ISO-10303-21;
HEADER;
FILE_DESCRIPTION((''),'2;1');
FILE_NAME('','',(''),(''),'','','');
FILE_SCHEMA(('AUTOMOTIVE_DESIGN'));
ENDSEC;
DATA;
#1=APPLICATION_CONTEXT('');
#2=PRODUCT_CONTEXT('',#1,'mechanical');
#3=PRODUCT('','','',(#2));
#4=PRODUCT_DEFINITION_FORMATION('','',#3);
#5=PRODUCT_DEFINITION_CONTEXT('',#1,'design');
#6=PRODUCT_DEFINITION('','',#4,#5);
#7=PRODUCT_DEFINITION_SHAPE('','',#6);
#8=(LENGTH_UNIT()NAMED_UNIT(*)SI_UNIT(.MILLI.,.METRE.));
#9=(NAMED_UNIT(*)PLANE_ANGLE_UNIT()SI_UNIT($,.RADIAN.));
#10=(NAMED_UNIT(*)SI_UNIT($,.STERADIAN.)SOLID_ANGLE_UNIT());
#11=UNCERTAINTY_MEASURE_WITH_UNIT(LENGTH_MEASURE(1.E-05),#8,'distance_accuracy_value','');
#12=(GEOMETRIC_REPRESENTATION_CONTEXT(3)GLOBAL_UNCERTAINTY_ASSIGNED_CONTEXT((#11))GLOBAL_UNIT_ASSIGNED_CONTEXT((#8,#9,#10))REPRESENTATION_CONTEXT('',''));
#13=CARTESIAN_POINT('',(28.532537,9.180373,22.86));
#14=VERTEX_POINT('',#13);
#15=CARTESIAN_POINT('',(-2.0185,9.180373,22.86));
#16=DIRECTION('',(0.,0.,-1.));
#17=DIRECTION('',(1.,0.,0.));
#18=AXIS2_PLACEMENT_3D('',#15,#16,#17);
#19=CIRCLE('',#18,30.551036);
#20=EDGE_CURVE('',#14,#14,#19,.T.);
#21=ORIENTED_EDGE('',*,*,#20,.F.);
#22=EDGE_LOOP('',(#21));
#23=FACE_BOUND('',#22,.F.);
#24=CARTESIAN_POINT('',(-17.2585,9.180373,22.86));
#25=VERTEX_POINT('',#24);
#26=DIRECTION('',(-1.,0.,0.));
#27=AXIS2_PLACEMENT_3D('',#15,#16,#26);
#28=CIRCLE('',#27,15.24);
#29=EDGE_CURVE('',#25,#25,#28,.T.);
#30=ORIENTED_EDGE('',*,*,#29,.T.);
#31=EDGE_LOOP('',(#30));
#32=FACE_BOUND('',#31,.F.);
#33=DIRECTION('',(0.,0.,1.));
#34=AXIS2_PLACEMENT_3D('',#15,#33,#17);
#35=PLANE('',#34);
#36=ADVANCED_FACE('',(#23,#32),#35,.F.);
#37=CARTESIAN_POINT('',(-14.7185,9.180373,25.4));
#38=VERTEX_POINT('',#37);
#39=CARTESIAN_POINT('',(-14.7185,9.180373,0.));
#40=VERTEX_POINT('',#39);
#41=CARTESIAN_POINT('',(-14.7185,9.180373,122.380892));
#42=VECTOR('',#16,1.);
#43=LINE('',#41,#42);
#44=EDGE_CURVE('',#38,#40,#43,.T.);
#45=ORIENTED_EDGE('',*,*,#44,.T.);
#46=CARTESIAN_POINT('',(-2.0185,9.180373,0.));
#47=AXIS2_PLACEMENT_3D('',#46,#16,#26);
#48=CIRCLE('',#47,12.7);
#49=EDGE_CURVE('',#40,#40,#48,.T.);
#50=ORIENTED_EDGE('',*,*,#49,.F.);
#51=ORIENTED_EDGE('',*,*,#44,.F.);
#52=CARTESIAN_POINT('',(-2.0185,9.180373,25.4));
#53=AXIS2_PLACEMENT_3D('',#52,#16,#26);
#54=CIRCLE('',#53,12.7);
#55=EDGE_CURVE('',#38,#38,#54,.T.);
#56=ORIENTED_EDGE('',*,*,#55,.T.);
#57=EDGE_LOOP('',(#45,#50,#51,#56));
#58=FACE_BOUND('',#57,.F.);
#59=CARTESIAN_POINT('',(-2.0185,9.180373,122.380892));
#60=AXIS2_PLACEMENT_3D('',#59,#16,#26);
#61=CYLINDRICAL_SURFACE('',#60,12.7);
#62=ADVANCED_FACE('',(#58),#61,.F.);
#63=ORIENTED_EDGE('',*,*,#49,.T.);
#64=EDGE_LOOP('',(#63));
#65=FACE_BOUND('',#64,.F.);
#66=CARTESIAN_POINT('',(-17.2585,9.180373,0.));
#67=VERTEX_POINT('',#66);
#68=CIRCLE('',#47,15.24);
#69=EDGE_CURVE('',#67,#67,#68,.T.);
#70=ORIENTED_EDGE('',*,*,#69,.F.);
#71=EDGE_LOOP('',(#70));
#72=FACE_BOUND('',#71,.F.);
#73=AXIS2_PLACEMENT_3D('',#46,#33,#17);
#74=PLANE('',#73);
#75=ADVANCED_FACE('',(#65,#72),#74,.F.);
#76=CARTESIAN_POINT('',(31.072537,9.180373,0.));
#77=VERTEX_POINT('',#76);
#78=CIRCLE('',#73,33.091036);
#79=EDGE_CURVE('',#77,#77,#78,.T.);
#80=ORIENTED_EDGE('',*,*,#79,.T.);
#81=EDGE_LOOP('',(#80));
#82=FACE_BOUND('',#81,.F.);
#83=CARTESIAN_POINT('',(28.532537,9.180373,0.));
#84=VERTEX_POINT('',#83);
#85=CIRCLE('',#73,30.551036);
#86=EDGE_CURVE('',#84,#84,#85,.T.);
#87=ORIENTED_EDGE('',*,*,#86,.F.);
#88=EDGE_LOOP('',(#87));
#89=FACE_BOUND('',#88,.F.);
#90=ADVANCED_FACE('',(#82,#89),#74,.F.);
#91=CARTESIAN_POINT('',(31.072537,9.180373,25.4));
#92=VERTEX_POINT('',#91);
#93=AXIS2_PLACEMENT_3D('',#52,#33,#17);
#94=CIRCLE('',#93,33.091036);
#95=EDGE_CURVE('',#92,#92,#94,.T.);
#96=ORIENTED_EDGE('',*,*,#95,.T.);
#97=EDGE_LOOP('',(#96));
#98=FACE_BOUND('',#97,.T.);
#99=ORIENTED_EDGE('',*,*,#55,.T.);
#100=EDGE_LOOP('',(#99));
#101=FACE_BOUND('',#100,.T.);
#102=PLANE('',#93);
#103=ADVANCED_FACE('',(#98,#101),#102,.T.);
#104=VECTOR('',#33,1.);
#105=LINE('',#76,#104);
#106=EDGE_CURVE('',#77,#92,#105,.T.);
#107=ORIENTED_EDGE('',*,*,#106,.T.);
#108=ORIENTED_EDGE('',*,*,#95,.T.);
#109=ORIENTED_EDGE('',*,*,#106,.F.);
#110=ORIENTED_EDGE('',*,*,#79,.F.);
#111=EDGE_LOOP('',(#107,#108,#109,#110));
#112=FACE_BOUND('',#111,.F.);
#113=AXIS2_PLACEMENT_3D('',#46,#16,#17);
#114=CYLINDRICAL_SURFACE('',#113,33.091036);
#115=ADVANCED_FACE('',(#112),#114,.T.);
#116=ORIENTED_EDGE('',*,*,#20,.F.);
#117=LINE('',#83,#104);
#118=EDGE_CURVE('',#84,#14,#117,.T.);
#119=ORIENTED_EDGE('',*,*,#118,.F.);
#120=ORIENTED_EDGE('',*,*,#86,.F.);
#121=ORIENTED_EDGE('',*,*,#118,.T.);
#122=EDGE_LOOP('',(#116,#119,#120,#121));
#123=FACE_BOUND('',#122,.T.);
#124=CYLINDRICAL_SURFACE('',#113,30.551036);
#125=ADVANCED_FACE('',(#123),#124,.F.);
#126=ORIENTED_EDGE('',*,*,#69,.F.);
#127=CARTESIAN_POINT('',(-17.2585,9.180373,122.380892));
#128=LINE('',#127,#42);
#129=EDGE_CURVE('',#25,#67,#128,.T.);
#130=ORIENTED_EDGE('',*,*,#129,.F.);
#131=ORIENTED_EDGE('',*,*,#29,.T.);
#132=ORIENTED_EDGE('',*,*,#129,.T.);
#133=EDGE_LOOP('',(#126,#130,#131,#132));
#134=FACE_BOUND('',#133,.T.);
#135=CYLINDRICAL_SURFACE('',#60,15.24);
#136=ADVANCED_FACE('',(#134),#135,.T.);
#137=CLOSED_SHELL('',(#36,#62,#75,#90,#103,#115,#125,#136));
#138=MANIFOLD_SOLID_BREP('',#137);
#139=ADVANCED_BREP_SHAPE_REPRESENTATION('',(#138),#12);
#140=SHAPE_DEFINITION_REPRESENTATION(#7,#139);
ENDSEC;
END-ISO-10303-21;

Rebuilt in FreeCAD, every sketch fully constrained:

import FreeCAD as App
import Part
import Sketcher
Q = App.Units.Quantity


def faces_at(feature, points):
    """Names of the faces that lie closest to the given points."""
    faces = feature.Shape.Faces
    near = lambda p: min(range(len(faces)), key=lambda i: faces[i].distToShape(Part.Vertex(*p))[0])
    return sorted({f"Face{near(p) + 1}" for p in points})

doc = App.newDocument("Part")
body = doc.addObject("PartDesign::Body", "Body")

# Sketch on XY plane
sketch1 = body.newObject("Sketcher::SketchObject", "Sketch")
sketch1.AttachmentSupport = (doc.getObject("XY_Plane"), [""])
sketch1.MapMode = "FlatFace"
sketch1.addGeometry(Part.Circle(App.Vector(-2, 9, 0), App.Vector(0, 0, 1), 33), False)
sketch1.addConstraint(Sketcher.Constraint("Diameter", 0, Q("66.182073 mm")))
sketch1.addConstraint(Sketcher.Constraint("DistanceX", 0, 3, -1, 1, Q("2.0185 mm")))
sketch1.addConstraint(Sketcher.Constraint("DistanceY", -1, 1, 0, 3, Q("9.180373 mm")))
pad1 = body.newObject("PartDesign::Pad", "Pad")
pad1.Profile = sketch1
pad1.Length = Q("1 in")

# Sketch on XY plane
sketch2 = body.newObject("Sketcher::SketchObject", "Sketch001")
sketch2.AttachmentSupport = (doc.getObject("XY_Plane"), [""])
sketch2.MapMode = "FlatFace"
sketch2.AttachmentOffset = App.Placement(App.Vector(0, 0, 1 * 25.4), App.Rotation())
sketch2.addGeometry(Part.Circle(App.Vector(-2, 9, 0), App.Vector(0, 0, 1), 13), False)
sketch2.addConstraint(Sketcher.Constraint("Diameter", 0, Q("1 in")))
sketch2.addConstraint(Sketcher.Constraint("DistanceX", 0, 3, -1, 1, Q("2.0185 mm")))
sketch2.addConstraint(Sketcher.Constraint("DistanceY", -1, 1, 0, 3, Q("9.180373 mm")))
doc.recompute()
hole = body.newObject("PartDesign::Hole", "Hole")
hole.Profile = sketch2
hole.ThreadType = "None"
hole.Diameter = Q("1 in")
hole.DepthType = "ThroughAll"
doc.recompute()

thickness = body.newObject("PartDesign::Thickness", "Thickness")
thickness.Base = (hole, faces_at(hole, [(-15.255, -4.056, 0)]))
thickness.Value = Q("0.1 in")
thickness.Reversed = True
thickness.Join = "Arc"

doc.recompute()
